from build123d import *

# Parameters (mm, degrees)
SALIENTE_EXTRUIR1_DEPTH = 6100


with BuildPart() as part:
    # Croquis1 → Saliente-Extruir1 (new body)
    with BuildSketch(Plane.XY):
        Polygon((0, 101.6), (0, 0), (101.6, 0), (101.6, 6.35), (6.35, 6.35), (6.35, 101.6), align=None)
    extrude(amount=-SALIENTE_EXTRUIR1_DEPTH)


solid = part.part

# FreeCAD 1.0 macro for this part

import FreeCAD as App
import Part
import Sketcher

V = App.Vector
Q = App.Units.Quantity


def add_polygon(sketch, points):
    """Adds a closed chain of lines whose ends are joined by coincident constraints."""
    first, n = sketch.GeometryCount, len(points)
    for a, b in zip(points, points[1:] + points[:1]):
        sketch.addGeometry(Part.LineSegment(App.Vector(*a, 0), App.Vector(*b, 0)), False)
    for i in range(n):
        sketch.addConstraint(Sketcher.Constraint("Coincident", first + i, 2, first + (i + 1) % n, 1))

doc = App.newDocument("Part")
body = doc.addObject("PartDesign::Body", "Body")

sketch1 = doc.addObject("Sketcher::SketchObject", "Sketch")
body.addObject(sketch1)
sketch1.AttachmentSupport = (doc.XY_Plane, [""])
sketch1.MapMode = "FlatFace"
add_polygon(sketch1, [(0, 102), (0, 0), (102, 0), (102, 6), (6, 6), (6, 102)])
sketch1.addConstraint([
    Sketcher.Constraint("Vertical", 0),
    Sketcher.Constraint("Horizontal", 1),
    Sketcher.Constraint("Vertical", 2),
    Sketcher.Constraint("Horizontal", 3),
    Sketcher.Constraint("Vertical", 4),
    Sketcher.Constraint("Horizontal", 5),
    Sketcher.Constraint("Coincident", 0, 2, -1, 1),
    Sketcher.Constraint("Equal", 1, 0),
    Sketcher.Constraint("Equal", 5, 2),
    Sketcher.Constraint("DistanceX", 1, 1, 1, 2, Q("4 in")),
    Sketcher.Constraint("DistanceX", 3, 2, 3, 1, Q("3.75 in")),
])
pad1 = doc.addObject("PartDesign::Pad", "Pad")
body.addObject(pad1)
pad1.Profile = sketch1
pad1.Length = 6100
pad1.Reversed = True

doc.recompute()
